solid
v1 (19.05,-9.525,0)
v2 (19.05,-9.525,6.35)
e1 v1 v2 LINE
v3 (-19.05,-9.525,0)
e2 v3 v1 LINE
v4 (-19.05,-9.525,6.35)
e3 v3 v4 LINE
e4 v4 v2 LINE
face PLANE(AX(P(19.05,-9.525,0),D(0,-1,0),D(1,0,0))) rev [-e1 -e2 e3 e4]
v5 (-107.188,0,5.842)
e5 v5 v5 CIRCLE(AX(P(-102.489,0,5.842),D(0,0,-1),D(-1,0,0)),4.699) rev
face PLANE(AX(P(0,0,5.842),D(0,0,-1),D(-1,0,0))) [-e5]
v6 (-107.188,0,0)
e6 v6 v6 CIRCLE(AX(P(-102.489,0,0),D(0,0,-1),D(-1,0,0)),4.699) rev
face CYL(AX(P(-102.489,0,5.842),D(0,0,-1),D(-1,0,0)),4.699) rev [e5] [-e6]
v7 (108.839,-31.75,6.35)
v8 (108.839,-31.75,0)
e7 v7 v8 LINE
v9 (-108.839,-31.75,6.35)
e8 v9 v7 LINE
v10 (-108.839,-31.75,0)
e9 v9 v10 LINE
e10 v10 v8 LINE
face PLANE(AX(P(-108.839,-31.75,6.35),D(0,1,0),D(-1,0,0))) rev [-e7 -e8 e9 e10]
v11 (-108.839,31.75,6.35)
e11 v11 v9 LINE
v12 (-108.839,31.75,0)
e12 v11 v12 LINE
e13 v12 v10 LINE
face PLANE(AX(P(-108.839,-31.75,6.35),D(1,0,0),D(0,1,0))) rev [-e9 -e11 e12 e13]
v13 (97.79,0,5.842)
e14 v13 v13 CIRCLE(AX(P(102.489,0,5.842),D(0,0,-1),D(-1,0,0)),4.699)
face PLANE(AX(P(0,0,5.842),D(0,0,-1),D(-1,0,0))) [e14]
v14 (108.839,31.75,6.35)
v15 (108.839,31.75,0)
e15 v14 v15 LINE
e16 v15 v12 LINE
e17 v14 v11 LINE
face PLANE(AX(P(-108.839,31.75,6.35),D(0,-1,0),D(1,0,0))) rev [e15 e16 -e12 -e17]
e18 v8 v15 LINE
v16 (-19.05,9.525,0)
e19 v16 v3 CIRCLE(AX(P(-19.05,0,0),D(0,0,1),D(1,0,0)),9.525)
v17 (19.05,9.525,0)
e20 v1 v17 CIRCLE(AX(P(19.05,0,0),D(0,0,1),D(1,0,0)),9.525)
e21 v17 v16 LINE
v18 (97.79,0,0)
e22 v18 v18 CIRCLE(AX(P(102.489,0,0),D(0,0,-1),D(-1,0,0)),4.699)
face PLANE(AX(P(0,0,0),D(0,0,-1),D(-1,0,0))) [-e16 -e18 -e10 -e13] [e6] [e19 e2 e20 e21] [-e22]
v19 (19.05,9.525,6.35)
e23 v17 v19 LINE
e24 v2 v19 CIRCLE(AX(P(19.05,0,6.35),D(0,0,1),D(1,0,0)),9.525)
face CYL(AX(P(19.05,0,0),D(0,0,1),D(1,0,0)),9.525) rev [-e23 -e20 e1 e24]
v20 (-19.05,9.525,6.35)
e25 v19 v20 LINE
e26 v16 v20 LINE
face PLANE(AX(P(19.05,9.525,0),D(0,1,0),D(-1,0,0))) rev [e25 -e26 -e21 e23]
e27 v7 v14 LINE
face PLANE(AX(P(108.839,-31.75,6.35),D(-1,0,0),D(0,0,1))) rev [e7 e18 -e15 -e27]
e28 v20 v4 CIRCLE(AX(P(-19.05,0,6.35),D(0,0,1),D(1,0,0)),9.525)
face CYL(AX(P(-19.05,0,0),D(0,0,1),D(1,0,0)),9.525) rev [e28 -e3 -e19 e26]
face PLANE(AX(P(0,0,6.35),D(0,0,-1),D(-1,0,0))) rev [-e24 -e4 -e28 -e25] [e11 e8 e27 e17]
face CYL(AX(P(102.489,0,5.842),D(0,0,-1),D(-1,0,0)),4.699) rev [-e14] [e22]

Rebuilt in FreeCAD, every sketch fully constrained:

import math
import FreeCAD as App
import Part
import Sketcher

V = App.Vector
Q = App.Units.Quantity

doc = App.newDocument("Part")
body = doc.addObject("PartDesign::Body", "Body")

# Sketch on XY plane
sketch1 = body.newObject("Sketcher::SketchObject", "Sketch")
sketch1.AttachmentSupport = (doc.getObject("XY_Plane"), [""])
sketch1.MapMode = "FlatFace"
sketch1.addGeometry([
    Part.LineSegment(V(-109, 32, 0), V(-109, -32, 0)),
    Part.LineSegment(V(-109, -32, 0), V(109, -32, 0)),
    Part.LineSegment(V(109, -32, 0), V(109, 32, 0)),
    Part.LineSegment(V(109, 32, 0), V(-109, 32, 0)),
], False)
sketch1.addConstraint([
    Sketcher.Constraint("Coincident", 0, 2, 1, 1),
    Sketcher.Constraint("Coincident", 1, 2, 2, 1),
    Sketcher.Constraint("Coincident", 2, 2, 3, 1),
    Sketcher.Constraint("Coincident", 3, 2, 0, 1),
    Sketcher.Constraint("Vertical", 0),
    Sketcher.Constraint("Horizontal", 1),
    Sketcher.Constraint("Vertical", 2),
    Sketcher.Constraint("Horizontal", 3),
    Sketcher.Constraint("Symmetric", 0, 2, 2, 2, -1, 1),
    Sketcher.Constraint("DistanceY", 0, 2, 0, 1, Q("2.5 in")),
    Sketcher.Constraint("DistanceX", 1, 1, 1, 2, Q("8.57 in")),
])
pad1 = body.newObject("PartDesign::Pad", "Pad")
pad1.Profile = sketch1
pad1.Length = Q("0.25 in")

# Sketch on XY plane
sketch2 = body.newObject("Sketcher::SketchObject", "Sketch001")
sketch2.AttachmentSupport = (doc.getObject("XY_Plane"), [""])
sketch2.MapMode = "FlatFace"
sketch2.AttachmentOffset = App.Placement(V(0, 0, 0.25 * 25.4), App.Rotation())
sketch2.addGeometry([
    Part.LineSegment(V(-19, -10, 0), V(19, -10, 0)),
    Part.ArcOfCircle(Part.Circle(V(19, 0, 0), V(0, 0, 1), 10), math.radians(-90), math.radians(90)),
    Part.LineSegment(V(19, 10, 0), V(-19, 10, 0)),
    Part.ArcOfCircle(Part.Circle(V(-19, 0, 0), V(0, 0, 1), 10), math.radians(90), math.radians(270)),
], False)
sketch2.addConstraint([
    Sketcher.Constraint("Tangent", 0, 2, 1, 1),
    Sketcher.Constraint("Tangent", 1, 2, 2, 1),
    Sketcher.Constraint("Tangent", 2, 2, 3, 1),
    Sketcher.Constraint("Tangent", 3, 2, 0, 1),
    Sketcher.Constraint("Horizontal", 0),
    Sketcher.Constraint("Horizontal", 2),
    Sketcher.Constraint("Symmetric", 1, 3, 3, 3, -1, 1),
    Sketcher.Constraint("DistanceX", 0, 1, 0, 2, Q("1.5 in")),
    Sketcher.Constraint("Radius", 1, Q("0.375 in")),
])
pocket1 = body.newObject("PartDesign::Pocket", "Pocket")
pocket1.Profile = sketch2
pocket1.Type = "ThroughAll"
pocket1.Midplane = True

# Sketch on XY plane
sketch3 = body.newObject("Sketcher::SketchObject", "Sketch002")
sketch3.AttachmentSupport = (doc.getObject("XY_Plane"), [""])
sketch3.MapMode = "FlatFace"
sketch3.addGeometry([
    Part.Circle(V(102.5, 0, 0), V(0, 0, 1), 4.7),
    Part.Circle(V(-102.5, 0, 0), V(0, 0, 1), 4.7),
], False)
sketch3.addConstraint([
    Sketcher.Constraint("Equal", 0, 1),
    Sketcher.Constraint("Symmetric", 0, 3, 1, 3, -1, 1),
    Sketcher.Constraint("PointOnObject", 0, 3, -1),
    Sketcher.Constraint("Diameter", 0, Q("0.37 in")),
    Sketcher.Constraint("DistanceX", 1, 3, 0, 3, Q("8.07 in")),
])
pocket2 = body.newObject("PartDesign::Pocket", "Pocket001")
pocket2.Profile = sketch3
pocket2.Length = Q("0.23 in")
pocket2.Reversed = True

doc.recompute()
